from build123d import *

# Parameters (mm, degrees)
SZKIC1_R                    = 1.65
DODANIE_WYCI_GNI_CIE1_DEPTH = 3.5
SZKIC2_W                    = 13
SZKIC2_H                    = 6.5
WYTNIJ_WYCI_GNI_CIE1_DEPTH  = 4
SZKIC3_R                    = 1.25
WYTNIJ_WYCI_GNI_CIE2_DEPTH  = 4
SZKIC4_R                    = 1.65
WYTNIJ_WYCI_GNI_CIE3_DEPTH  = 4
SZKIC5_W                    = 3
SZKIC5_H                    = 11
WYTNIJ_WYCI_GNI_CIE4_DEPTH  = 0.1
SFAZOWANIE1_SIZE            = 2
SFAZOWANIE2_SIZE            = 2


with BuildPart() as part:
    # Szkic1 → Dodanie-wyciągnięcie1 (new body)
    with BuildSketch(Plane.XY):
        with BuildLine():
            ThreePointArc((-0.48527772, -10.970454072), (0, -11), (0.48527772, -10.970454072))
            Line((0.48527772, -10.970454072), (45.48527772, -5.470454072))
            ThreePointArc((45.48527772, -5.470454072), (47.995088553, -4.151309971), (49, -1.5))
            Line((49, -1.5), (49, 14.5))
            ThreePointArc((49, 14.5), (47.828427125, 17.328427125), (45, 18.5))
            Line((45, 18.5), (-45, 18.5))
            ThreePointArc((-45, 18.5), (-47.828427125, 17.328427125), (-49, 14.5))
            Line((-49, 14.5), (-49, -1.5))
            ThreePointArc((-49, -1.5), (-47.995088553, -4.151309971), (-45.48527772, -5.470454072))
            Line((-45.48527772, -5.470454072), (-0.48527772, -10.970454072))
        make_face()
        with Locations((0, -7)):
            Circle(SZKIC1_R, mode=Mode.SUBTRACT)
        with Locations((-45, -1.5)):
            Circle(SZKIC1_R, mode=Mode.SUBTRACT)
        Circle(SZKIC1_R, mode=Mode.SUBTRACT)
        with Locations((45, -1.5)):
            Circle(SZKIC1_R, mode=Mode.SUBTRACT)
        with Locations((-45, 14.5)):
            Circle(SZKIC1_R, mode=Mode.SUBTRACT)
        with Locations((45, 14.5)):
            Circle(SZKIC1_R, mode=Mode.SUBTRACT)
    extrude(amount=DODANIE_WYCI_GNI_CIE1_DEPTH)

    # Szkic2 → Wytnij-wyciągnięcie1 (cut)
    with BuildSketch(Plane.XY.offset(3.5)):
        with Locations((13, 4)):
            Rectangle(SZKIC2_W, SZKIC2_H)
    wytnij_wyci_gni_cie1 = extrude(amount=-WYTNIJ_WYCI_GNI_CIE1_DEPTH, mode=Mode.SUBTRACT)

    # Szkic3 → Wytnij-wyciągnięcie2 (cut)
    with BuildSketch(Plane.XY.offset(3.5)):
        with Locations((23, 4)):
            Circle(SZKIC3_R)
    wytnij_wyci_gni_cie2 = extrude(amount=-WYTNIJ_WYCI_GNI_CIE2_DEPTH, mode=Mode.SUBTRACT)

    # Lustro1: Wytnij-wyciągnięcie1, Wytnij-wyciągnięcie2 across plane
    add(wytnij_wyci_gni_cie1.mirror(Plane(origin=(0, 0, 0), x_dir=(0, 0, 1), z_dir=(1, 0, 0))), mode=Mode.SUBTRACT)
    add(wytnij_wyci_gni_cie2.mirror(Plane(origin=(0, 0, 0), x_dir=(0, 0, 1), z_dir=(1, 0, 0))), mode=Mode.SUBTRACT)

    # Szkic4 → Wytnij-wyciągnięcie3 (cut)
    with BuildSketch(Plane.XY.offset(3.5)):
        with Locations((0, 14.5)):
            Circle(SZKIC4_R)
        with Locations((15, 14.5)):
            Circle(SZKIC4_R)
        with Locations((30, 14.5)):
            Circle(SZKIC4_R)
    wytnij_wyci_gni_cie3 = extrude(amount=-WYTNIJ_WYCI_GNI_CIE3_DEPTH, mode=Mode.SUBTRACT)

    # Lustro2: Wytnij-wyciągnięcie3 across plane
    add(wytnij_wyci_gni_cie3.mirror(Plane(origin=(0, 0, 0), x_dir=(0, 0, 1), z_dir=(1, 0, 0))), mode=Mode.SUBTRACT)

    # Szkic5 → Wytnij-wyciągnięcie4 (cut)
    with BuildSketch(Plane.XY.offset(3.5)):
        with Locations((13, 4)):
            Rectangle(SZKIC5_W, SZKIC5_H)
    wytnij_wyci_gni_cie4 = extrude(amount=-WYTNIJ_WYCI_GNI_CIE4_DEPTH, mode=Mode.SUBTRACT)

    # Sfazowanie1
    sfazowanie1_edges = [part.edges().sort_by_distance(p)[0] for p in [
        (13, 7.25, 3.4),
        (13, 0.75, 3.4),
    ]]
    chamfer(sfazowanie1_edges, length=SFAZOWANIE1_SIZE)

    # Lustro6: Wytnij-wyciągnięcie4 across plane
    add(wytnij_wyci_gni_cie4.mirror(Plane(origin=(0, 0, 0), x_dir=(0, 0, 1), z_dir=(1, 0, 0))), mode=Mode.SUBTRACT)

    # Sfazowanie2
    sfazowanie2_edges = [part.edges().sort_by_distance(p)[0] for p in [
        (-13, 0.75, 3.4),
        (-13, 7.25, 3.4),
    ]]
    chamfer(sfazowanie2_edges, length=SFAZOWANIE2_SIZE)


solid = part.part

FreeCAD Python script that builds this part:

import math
import FreeCAD as App
import Part
import Sketcher

V = App.Vector
Q = App.Units.Quantity


def edges_at(feature, points):
    """Names of the edges that pass closest to the given points."""
    edges = feature.Shape.Edges
    near = lambda p: min(range(len(edges)), key=lambda i: edges[i].distToShape(Part.Vertex(*p))[0])
    return sorted({f"Edge{near(p) + 1}" for p in points})

doc = App.newDocument("Part")
params = doc.addObject("Spreadsheet::Sheet", "Params")
for row, (alias, value) in enumerate([
    ("sketch1_radius", "4 mm"),
    ("sketch1_diameter", "3.3 mm"),
    ("sketch1_width", "90 mm"),
    ("sketch1_height", "16 mm"),
    ("pad1_length", "3.5 mm"),
    ("sketch2_width", "13 mm"),
    ("sketch2_height", "6.5 mm"),
    ("pocket1_length", "4 mm"),
    ("sketch3_diameter", "2.5 mm"),
    ("pocket2_length", "4 mm"),
    ("sketch4_diameter", "3.3 mm"),
    ("pocket3_length", "4 mm"),
    ("sketch5_width", "3 mm"),
    ("sketch5_height", "11 mm"),
    ("pocket4_length", "0.1 mm"),
    ("chamfer_size", "2 mm"),
    ("chamfer2_size", "2 mm"),
], start=1):
    params.set(f"A{row}", alias)
    params.set(f"B{row}", "=" + value)
    params.setAlias(f"B{row}", alias)

body = doc.addObject("PartDesign::Body", "Body")

# Sketch on XY plane
sketch1 = body.newObject("Sketcher::SketchObject", "Sketch")
sketch1.AttachmentSupport = (doc.getObject("XY_Plane"), [""])
sketch1.MapMode = "FlatFace"
sketch1.addGeometry(Part.ArcOfCircle(Part.Circle(V(0, -7, 0), V(0, 0, 1), 4), math.radians(-96.97), math.radians(-83.03)), False)
sketch1.addGeometry(Part.LineSegment(V(0.5, -11, 0), V(45.5, -5.5, 0)), False)
sketch1.addGeometry(Part.ArcOfCircle(Part.Circle(V(45, -1.5, 0), V(0, 0, 1), 4), math.radians(-83), math.radians(0)), False)
sketch1.addGeometry(Part.LineSegment(V(49, -1.5, 0), V(49, 14.5, 0)), False)
sketch1.addGeometry(Part.ArcOfCircle(Part.Circle(V(45, 14.5, 0), V(0, 0, 1), 4), math.radians(0), math.radians(90)), False)
sketch1.addGeometry(Part.LineSegment(V(45, 18.5, 0), V(-45, 18.5, 0)), False)
sketch1.addGeometry(Part.ArcOfCircle(Part.Circle(V(-45, 14.5, 0), V(0, 0, 1), 4), math.radians(90), math.radians(180)), False)
sketch1.addGeometry(Part.LineSegment(V(-49, 14.5, 0), V(-49, -1.5, 0)), False)
sketch1.addGeometry(Part.ArcOfCircle(Part.Circle(V(-45, -1.5, 0), V(0, 0, 1), 4), math.radians(180), math.radians(263)), False)
sketch1.addGeometry(Part.LineSegment(V(-45.5, -5.5, 0), V(-0.5, -11, 0)), False)
sketch1.addGeometry(Part.Circle(V(-45, -1.5, 0), V(0, 0, 1), 1.6), False)
sketch1.addGeometry(Part.Circle(V(0, -7, 0), V(0, 0, 1), 1.6), False)
sketch1.addGeometry(Part.Circle(V(0, 0, 0), V(0, 0, 1), 1.6), False)
sketch1.addGeometry(Part.Circle(V(45, -1.5, 0), V(0, 0, 1), 1.6), False)
sketch1.addGeometry(Part.Circle(V(-45, 14.5, 0), V(0, 0, 1), 1.6), False)
sketch1.addGeometry(Part.Circle(V(45, 14.5, 0), V(0, 0, 1), 1.6), False)
sketch1.addConstraint(Sketcher.Constraint("Tangent", 0, 2, 1, 1))
sketch1.addConstraint(Sketcher.Constraint("Tangent", 1, 2, 2, 1))
sketch1.addConstraint(Sketcher.Constraint("Tangent", 2, 2, 3, 1))
sketch1.addConstraint(Sketcher.Constraint("Tangent", 3, 2, 4, 1))
sketch1.addConstraint(Sketcher.Constraint("Tangent", 4, 2, 5, 1))
sketch1.addConstraint(Sketcher.Constraint("Tangent", 5, 2, 6, 1))
sketch1.addConstraint(Sketcher.Constraint("Tangent", 6, 2, 7, 1))
sketch1.addConstraint(Sketcher.Constraint("Tangent", 7, 2, 8, 1))
sketch1.addConstraint(Sketcher.Constraint("Tangent", 8, 2, 9, 1))
sketch1.addConstraint(Sketcher.Constraint("Tangent", 9, 2, 0, 1))
sketch1.addConstraint(Sketcher.Constraint("Vertical", 3))
sketch1.addConstraint(Sketcher.Constraint("Horizontal", 5))
sketch1.addConstraint(Sketcher.Constraint("Vertical", 7))
sketch1.addConstraint(Sketcher.Constraint("Coincident", 12, 3, -1, 1))
sketch1.addConstraint(Sketcher.Constraint("Coincident", 10, 3, 8, 3))
sketch1.addConstraint(Sketcher.Constraint("Coincident", 11, 3, 0, 3))
sketch1.addConstraint(Sketcher.Constraint("Coincident", 13, 3, 2, 3))
sketch1.addConstraint(Sketcher.Constraint("Coincident", 14, 3, 6, 3))
sketch1.addConstraint(Sketcher.Constraint("Coincident", 15, 3, 4, 3))
sketch1.addConstraint(Sketcher.Constraint("Equal", 0, 2))
sketch1.addConstraint(Sketcher.Constraint("Equal", 2, 4))
sketch1.addConstraint(Sketcher.Constraint("Equal", 4, 6))
sketch1.addConstraint(Sketcher.Constraint("Equal", 6, 8))
sketch1.addConstraint(Sketcher.Constraint("Equal", 10, 11))
sketch1.addConstraint(Sketcher.Constraint("Equal", 11, 12))
sketch1.addConstraint(Sketcher.Constraint("Equal", 12, 13))
sketch1.addConstraint(Sketcher.Constraint("Equal", 13, 14))
sketch1.addConstraint(Sketcher.Constraint("Equal", 14, 15))
sketch1.addConstraint(Sketcher.Constraint("Symmetric", 2, 3, 8, 3, -2))
sketch1.addConstraint(Sketcher.Constraint("PointOnObject", 0, 3, -2))
sketch1.addConstraint(Sketcher.Constraint("Radius", 0, Q("4 mm")))
sketch1.addConstraint(Sketcher.Constraint("Diameter", 10, Q("3.3 mm")))
sketch1.addConstraint(Sketcher.Constraint("DistanceX", 5, 2, 5, 1, Q("90 mm")))
sketch1.addConstraint(Sketcher.Constraint("DistanceY", 3, 1, 3, 2, Q("16 mm")))
sketch1.addConstraint(Sketcher.Constraint("DistanceY", 0, 3, -1, 1, Q("7 mm")))
sketch1.addConstraint(Sketcher.Constraint("DistanceY", 2, 3, -1, 1, Q("1.5 mm")))
sketch1.setExpression("Constraints[30]", "Params.sketch1_radius")
sketch1.setExpression("Constraints[31]", "Params.sketch1_diameter")
sketch1.setExpression("Constraints[32]", "Params.sketch1_width")
sketch1.setExpression("Constraints[33]", "Params.sketch1_height")
pad1 = body.newObject("PartDesign::Pad", "Pad")
pad1.Profile = sketch1
pad1.setExpression("Length", "Params.pad1_length")

# Sketch on XY plane
sketch2 = body.newObject("Sketcher::SketchObject", "Sketch001")
sketch2.AttachmentSupport = (doc.getObject("XY_Plane"), [""])
sketch2.MapMode = "FlatFace"
sketch2.AttachmentOffset = App.Placement(V(0, 0, 3.5), App.Rotation())
sketch2.addGeometry(Part.LineSegment(V(6, 7, 0), V(6, 1, 0)), False)
sketch2.addGeometry(Part.LineSegment(V(6, 1, 0), V(20, 1, 0)), False)
sketch2.addGeometry(Part.LineSegment(V(20, 1, 0), V(20, 7, 0)), False)
sketch2.addGeometry(Part.LineSegment(V(20, 7, 0), V(6, 7, 0)), False)
sketch2.addConstraint(Sketcher.Constraint("Coincident", 0, 2, 1, 1))
sketch2.addConstraint(Sketcher.Constraint("Coincident", 1, 2, 2, 1))
sketch2.addConstraint(Sketcher.Constraint("Coincident", 2, 2, 3, 1))
sketch2.addConstraint(Sketcher.Constraint("Coincident", 3, 2, 0, 1))
sketch2.addConstraint(Sketcher.Constraint("Vertical", 0))
sketch2.addConstraint(Sketcher.Constraint("Horizontal", 1))
sketch2.addConstraint(Sketcher.Constraint("Vertical", 2))
sketch2.addConstraint(Sketcher.Constraint("Horizontal", 3))
sketch2.addConstraint(Sketcher.Constraint("DistanceX", 1, 1, 1, 2, Q("13 mm")))
sketch2.addConstraint(Sketcher.Constraint("DistanceY", 0, 2, 0, 1, Q("6.5 mm")))
sketch2.addConstraint(Sketcher.Constraint("DistanceX", -1, 1, 0, 2, Q("6.5 mm")))
sketch2.addConstraint(Sketcher.Constraint("DistanceY", -1, 1, 0, 2, Q("0.75 mm")))
sketch2.setExpression("Constraints[8]", "Params.sketch2_width")
sketch2.setExpression("Constraints[9]", "Params.sketch2_height")
pocket1 = body.newObject("PartDesign::Pocket", "Pocket")
pocket1.Profile = sketch2
pocket1.setExpression("Length", "Params.pocket1_length")

# Sketch on XY plane
sketch3 = body.newObject("Sketcher::SketchObject", "Sketch002")
sketch3.AttachmentSupport = (doc.getObject("XY_Plane"), [""])
sketch3.MapMode = "FlatFace"
sketch3.AttachmentOffset = App.Placement(V(0, 0, 3.5), App.Rotation())
sketch3.addGeometry(Part.Circle(V(23, 4, 0), V(0, 0, 1), 1.2), False)
sketch3.addConstraint(Sketcher.Constraint("Diameter", 0, Q("2.5 mm")))
sketch3.addConstraint(Sketcher.Constraint("DistanceX", -1, 1, 0, 3, Q("23 mm")))
sketch3.addConstraint(Sketcher.Constraint("DistanceY", -1, 1, 0, 3, Q("4 mm")))
sketch3.setExpression("Constraints[0]", "Params.sketch3_diameter")
pocket2 = body.newObject("PartDesign::Pocket", "Pocket001")
pocket2.Profile = sketch3
pocket2.setExpression("Length", "Params.pocket2_length")
doc.recompute()

mirrored = body.newObject("PartDesign::Mirrored", "Mirrored")
mirrored.Originals = [pocket1, pocket2]
mirrored.MirrorPlane = (doc.getObject("YZ_Plane"), [""])
body.Tip = mirrored

# Sketch on XY plane
sketch4 = body.newObject("Sketcher::SketchObject", "Sketch003")
sketch4.AttachmentSupport = (doc.getObject("XY_Plane"), [""])
sketch4.MapMode = "FlatFace"
sketch4.AttachmentOffset = App.Placement(V(0, 0, 3.5), App.Rotation())
sketch4.addGeometry(Part.Circle(V(0, 14.5, 0), V(0, 0, 1), 1.6), False)
sketch4.addGeometry(Part.Circle(V(15, 14.5, 0), V(0, 0, 1), 1.6), False)
sketch4.addGeometry(Part.Circle(V(30, 14.5, 0), V(0, 0, 1), 1.6), False)
sketch4.addConstraint(Sketcher.Constraint("Equal", 0, 1))
sketch4.addConstraint(Sketcher.Constraint("Equal", 1, 2))
sketch4.addConstraint(Sketcher.Constraint("PointOnObject", 0, 3, -2))
sketch4.addConstraint(Sketcher.Constraint("Horizontal", 0, 3, 1, 3))
sketch4.addConstraint(Sketcher.Constraint("Horizontal", 1, 3, 2, 3))
sketch4.addConstraint(Sketcher.Constraint("Diameter", 0, Q("3.3 mm")))
sketch4.addConstraint(Sketcher.Constraint("DistanceX", -1, 1, 1, 3, Q("15 mm")))
sketch4.addConstraint(Sketcher.Constraint("DistanceX", -1, 1, 2, 3, Q("30 mm")))
sketch4.addConstraint(Sketcher.Constraint("DistanceY", -1, 1, 0, 3, Q("14.5 mm")))
sketch4.setExpression("Constraints[5]", "Params.sketch4_diameter")
pocket3 = body.newObject("PartDesign::Pocket", "Pocket002")
pocket3.Profile = sketch4
pocket3.setExpression("Length", "Params.pocket3_length")
doc.recompute()

mirrored2 = body.newObject("PartDesign::Mirrored", "Mirrored001")
mirrored2.Originals = [pocket3]
mirrored2.MirrorPlane = (doc.getObject("YZ_Plane"), [""])
body.Tip = mirrored2

# Sketch on XY plane
sketch5 = body.newObject("Sketcher::SketchObject", "Sketch004")
sketch5.AttachmentSupport = (doc.getObject("XY_Plane"), [""])
sketch5.MapMode = "FlatFace"
sketch5.AttachmentOffset = App.Placement(V(0, 0, 3.5), App.Rotation())
sketch5.addGeometry(Part.LineSegment(V(11.5, 9.5, 0), V(11.5, -1.5, 0)), False)
sketch5.addGeometry(Part.LineSegment(V(11.5, -1.5, 0), V(14.5, -1.5, 0)), False)
sketch5.addGeometry(Part.LineSegment(V(14.5, -1.5, 0), V(14.5, 9.5, 0)), False)
sketch5.addGeometry(Part.LineSegment(V(14.5, 9.5, 0), V(11.5, 9.5, 0)), False)
sketch5.addConstraint(Sketcher.Constraint("Coincident", 0, 2, 1, 1))
sketch5.addConstraint(Sketcher.Constraint("Coincident", 1, 2, 2, 1))
sketch5.addConstraint(Sketcher.Constraint("Coincident", 2, 2, 3, 1))
sketch5.addConstraint(Sketcher.Constraint("Coincident", 3, 2, 0, 1))
sketch5.addConstraint(Sketcher.Constraint("Vertical", 0))
sketch5.addConstraint(Sketcher.Constraint("Horizontal", 1))
sketch5.addConstraint(Sketcher.Constraint("Vertical", 2))
sketch5.addConstraint(Sketcher.Constraint("Horizontal", 3))
sketch5.addConstraint(Sketcher.Constraint("DistanceX", 1, 1, 1, 2, Q("3 mm")))
sketch5.addConstraint(Sketcher.Constraint("DistanceY", 0, 2, 0, 1, Q("11 mm")))
sketch5.addConstraint(Sketcher.Constraint("DistanceX", -1, 1, 0, 2, Q("11.5 mm")))
sketch5.addConstraint(Sketcher.Constraint("DistanceY", 0, 2, -1, 1, Q("1.5 mm")))
sketch5.setExpression("Constraints[8]", "Params.sketch5_width")
sketch5.setExpression("Constraints[9]", "Params.sketch5_height")
pocket4 = body.newObject("PartDesign::Pocket", "Pocket003")
pocket4.Profile = sketch5
pocket4.setExpression("Length", "Params.pocket4_length")
doc.recompute()

chamfer = body.newObject("PartDesign::Chamfer", "Chamfer")
chamfer.Base = (pocket4, edges_at(pocket4, [(13, 7.25, 3.4), (13, 0.75, 3.4)]))
chamfer.setExpression("Size", "Params.chamfer_size")
doc.recompute()

mirrored3 = body.newObject("PartDesign::Mirrored", "Mirrored002")
mirrored3.Originals = [pocket4]
mirrored3.MirrorPlane = (doc.getObject("YZ_Plane"), [""])
body.Tip = mirrored3
doc.recompute()

chamfer2 = body.newObject("PartDesign::Chamfer", "Chamfer001")
chamfer2.Base = (mirrored3, edges_at(mirrored3, [(-13, 0.75, 3.4), (-13, 7.25, 3.4)]))
chamfer2.setExpression("Size", "Params.chamfer2_size")

doc.recompute()
